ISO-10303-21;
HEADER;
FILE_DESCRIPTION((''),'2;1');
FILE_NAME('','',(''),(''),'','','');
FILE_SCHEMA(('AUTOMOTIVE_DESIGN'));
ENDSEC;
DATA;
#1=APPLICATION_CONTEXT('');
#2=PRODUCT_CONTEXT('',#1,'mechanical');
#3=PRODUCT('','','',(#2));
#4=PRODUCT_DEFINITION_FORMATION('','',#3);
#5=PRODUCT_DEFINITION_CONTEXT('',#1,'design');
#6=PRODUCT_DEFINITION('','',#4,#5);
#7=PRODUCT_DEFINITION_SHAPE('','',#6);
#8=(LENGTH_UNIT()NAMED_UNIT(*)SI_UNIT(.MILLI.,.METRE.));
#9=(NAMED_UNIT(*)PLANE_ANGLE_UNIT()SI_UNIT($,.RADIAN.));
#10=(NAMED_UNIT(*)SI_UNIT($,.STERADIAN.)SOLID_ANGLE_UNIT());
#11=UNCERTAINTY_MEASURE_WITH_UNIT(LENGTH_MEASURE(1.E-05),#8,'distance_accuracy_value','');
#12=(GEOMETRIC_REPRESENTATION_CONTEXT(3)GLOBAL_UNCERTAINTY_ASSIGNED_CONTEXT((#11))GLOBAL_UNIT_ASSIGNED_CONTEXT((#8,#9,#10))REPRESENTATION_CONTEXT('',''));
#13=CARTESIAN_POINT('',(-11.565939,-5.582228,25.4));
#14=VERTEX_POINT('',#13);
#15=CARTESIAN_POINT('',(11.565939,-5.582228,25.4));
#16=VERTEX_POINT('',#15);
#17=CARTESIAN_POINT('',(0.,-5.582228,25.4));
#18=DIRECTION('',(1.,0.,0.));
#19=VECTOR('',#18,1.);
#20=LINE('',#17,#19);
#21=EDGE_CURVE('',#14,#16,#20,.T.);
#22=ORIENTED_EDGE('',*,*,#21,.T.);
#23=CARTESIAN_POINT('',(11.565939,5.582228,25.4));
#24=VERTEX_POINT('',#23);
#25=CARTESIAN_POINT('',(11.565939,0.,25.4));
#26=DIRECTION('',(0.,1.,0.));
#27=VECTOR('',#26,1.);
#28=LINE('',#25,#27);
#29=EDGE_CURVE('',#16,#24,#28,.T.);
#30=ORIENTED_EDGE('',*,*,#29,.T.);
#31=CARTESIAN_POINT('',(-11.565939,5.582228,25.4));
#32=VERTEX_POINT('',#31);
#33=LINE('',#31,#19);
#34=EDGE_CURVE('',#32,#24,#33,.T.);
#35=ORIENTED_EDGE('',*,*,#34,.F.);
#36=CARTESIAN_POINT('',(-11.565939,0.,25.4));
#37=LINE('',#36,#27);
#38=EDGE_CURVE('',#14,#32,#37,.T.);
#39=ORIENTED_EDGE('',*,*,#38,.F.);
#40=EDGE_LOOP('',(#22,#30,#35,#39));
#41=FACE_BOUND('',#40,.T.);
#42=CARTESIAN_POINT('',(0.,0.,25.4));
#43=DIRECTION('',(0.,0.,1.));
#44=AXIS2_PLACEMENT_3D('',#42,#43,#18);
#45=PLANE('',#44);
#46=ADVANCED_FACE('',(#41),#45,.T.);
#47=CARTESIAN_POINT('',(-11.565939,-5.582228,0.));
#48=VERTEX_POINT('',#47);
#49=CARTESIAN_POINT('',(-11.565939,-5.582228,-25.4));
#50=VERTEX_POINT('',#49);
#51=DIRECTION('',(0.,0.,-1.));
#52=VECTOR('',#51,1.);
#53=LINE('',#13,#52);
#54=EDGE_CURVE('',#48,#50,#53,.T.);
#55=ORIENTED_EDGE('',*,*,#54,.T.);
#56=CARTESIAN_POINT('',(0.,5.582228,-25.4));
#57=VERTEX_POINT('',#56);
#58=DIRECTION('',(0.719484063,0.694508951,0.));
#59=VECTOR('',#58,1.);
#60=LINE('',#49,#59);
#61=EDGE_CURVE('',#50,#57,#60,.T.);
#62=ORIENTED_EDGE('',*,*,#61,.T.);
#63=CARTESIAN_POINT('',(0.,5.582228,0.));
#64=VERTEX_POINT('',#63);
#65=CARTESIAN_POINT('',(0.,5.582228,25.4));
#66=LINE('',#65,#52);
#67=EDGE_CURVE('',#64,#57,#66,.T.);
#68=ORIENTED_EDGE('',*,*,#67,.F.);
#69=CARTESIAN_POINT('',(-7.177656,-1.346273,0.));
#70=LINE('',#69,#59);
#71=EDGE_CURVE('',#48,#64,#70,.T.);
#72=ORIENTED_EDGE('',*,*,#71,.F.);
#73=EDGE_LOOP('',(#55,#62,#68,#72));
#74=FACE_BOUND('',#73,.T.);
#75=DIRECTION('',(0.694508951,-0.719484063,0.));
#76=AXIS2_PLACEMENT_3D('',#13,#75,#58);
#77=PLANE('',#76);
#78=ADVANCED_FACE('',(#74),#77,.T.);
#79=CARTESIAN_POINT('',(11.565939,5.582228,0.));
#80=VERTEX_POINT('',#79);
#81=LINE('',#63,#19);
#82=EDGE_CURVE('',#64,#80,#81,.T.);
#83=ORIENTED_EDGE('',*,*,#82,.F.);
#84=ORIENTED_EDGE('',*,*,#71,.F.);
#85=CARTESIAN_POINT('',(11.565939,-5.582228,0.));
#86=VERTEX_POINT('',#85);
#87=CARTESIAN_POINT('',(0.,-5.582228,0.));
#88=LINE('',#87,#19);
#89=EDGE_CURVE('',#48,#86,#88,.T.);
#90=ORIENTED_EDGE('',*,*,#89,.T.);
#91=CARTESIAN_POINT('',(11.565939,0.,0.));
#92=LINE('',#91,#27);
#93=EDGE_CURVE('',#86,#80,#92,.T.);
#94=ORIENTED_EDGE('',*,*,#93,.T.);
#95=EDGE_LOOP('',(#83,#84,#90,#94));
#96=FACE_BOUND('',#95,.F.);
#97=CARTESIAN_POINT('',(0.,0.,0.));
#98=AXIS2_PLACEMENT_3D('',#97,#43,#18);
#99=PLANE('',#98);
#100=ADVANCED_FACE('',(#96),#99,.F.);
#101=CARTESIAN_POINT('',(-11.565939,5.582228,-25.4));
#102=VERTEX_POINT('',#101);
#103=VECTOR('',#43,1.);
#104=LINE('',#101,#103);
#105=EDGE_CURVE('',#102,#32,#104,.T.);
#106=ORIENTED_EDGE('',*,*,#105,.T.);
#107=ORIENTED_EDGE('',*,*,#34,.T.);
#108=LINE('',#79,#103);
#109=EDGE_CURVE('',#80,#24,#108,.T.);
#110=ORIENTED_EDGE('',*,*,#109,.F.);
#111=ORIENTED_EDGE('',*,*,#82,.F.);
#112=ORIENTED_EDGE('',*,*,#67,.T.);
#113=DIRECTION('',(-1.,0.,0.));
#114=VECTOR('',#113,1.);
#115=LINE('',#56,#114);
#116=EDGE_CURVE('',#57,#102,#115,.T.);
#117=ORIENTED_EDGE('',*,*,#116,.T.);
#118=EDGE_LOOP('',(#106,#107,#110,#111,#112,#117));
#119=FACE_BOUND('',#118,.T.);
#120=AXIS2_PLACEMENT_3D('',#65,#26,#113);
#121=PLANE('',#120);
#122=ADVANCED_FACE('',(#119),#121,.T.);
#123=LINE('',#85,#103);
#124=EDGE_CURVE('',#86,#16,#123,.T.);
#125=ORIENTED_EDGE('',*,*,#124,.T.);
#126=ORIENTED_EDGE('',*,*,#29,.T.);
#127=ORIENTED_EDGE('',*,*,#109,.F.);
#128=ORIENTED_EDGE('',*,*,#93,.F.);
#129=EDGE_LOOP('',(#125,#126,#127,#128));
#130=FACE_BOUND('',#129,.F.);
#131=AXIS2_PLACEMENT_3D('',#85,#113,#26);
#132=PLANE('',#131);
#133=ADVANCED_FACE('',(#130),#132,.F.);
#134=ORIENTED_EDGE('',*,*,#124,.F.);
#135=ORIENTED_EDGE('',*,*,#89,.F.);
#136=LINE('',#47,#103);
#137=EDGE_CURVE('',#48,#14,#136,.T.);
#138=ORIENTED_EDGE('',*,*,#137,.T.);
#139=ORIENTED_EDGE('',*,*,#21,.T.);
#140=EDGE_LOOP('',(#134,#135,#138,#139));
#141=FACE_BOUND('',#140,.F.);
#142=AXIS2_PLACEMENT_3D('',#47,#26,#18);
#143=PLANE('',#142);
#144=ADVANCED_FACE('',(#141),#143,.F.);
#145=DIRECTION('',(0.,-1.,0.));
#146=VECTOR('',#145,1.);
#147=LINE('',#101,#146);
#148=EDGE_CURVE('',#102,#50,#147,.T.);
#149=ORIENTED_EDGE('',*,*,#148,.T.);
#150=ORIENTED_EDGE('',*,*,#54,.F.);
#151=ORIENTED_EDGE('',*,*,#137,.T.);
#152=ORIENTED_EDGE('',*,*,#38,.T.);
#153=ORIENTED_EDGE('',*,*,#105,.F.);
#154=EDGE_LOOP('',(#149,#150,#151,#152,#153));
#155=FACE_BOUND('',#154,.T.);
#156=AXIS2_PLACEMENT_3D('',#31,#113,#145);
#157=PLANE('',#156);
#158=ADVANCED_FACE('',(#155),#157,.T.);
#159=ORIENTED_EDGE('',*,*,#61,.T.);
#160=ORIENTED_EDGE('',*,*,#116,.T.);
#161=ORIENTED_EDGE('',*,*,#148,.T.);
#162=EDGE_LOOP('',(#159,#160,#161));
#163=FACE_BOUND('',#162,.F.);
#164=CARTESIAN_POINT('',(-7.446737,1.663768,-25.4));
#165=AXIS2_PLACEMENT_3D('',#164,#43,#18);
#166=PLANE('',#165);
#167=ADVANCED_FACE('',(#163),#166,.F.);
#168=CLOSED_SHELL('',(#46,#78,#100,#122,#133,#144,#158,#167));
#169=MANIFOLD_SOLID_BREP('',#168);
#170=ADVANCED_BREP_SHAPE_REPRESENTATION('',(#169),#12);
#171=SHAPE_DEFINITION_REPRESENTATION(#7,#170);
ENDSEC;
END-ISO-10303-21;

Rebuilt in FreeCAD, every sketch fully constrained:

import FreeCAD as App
import Part
import Sketcher


def add_polygon(sketch, points):
    """Adds a closed chain of lines whose ends are joined by coincident constraints."""
    first, n = sketch.GeometryCount, len(points)
    for a, b in zip(points, points[1:] + points[:1]):
        sketch.addGeometry(Part.LineSegment(App.Vector(*a, 0), App.Vector(*b, 0)), False)
    for i in range(n):
        sketch.addConstraint(Sketcher.Constraint("Coincident", first + i, 2, first + (i + 1) % n, 1))

doc = App.newDocument("Part")
params = doc.addObject("Spreadsheet::Sheet", "Params")
for row, (alias, value) in enumerate([
    ("pad1_length", "1 in"),
    ("pad2_length", "2 in"),
], start=1):
    params.set(f"A{row}", alias)
    params.set(f"B{row}", "=" + value)
    params.setAlias(f"B{row}", alias)

body = doc.addObject("PartDesign::Body", "Body")

sketch1 = doc.addObject("Sketcher::SketchObject", "Sketch")
body.addObject(sketch1)
sketch1.AttachmentSupport = (doc.XY_Plane, [""])
sketch1.MapMode = "FlatFace"
add_polygon(sketch1, [(-12, 6), (-12, -6), (12, -6), (12, 6)])
sketch1.addConstraint(Sketcher.Constraint("Vertical", 0))
sketch1.addConstraint(Sketcher.Constraint("Horizontal", 1))
sketch1.addConstraint(Sketcher.Constraint("Vertical", 2))
sketch1.addConstraint(Sketcher.Constraint("Horizontal", 3))
sketch1.addConstraint(Sketcher.Constraint("Symmetric", 0, 2, 2, 2, -1, 1))
sketch1.addConstraint(Sketcher.Constraint("DistanceX", 1, 1, 1, 2, 23.131878))
sketch1.addConstraint(Sketcher.Constraint("DistanceY", 0, 2, 0, 1, 11.164456))
pad1 = doc.addObject("PartDesign::Pad", "Pad")
body.addObject(pad1)
pad1.Profile = sketch1
pad1.setExpression("Length", "Params.pad1_length")

sketch2 = doc.addObject("Sketcher::SketchObject", "Sketch001")
body.addObject(sketch2)
sketch2.AttachmentSupport = (doc.XY_Plane, [""])
sketch2.MapMode = "FlatFace"
sketch2.AttachmentOffset = App.Placement(App.Vector(0, 0, 1 * 25.4), App.Rotation())
add_polygon(sketch2, [(-12, -6), (0, 6), (-12, 6)])
sketch2.addConstraint(Sketcher.Constraint("Horizontal", 1))
sketch2.addConstraint(Sketcher.Constraint("Vertical", 2))
sketch2.addConstraint(Sketcher.Constraint("PointOnObject", 0, 2, -2))
sketch2.addConstraint(Sketcher.Constraint("DistanceX", 1, 2, 1, 1, 11.565939))
sketch2.addConstraint(Sketcher.Constraint("DistanceY", 2, 2, 2, 1, 11.164456))
sketch2.addConstraint(Sketcher.Constraint("DistanceY", -1, 1, 0, 2, 5.582228))
pad2 = doc.addObject("PartDesign::Pad", "Pad001")
body.addObject(pad2)
pad2.Profile = sketch2
pad2.setExpression("Length", "Params.pad2_length")
pad2.Reversed = True

doc.recompute()
